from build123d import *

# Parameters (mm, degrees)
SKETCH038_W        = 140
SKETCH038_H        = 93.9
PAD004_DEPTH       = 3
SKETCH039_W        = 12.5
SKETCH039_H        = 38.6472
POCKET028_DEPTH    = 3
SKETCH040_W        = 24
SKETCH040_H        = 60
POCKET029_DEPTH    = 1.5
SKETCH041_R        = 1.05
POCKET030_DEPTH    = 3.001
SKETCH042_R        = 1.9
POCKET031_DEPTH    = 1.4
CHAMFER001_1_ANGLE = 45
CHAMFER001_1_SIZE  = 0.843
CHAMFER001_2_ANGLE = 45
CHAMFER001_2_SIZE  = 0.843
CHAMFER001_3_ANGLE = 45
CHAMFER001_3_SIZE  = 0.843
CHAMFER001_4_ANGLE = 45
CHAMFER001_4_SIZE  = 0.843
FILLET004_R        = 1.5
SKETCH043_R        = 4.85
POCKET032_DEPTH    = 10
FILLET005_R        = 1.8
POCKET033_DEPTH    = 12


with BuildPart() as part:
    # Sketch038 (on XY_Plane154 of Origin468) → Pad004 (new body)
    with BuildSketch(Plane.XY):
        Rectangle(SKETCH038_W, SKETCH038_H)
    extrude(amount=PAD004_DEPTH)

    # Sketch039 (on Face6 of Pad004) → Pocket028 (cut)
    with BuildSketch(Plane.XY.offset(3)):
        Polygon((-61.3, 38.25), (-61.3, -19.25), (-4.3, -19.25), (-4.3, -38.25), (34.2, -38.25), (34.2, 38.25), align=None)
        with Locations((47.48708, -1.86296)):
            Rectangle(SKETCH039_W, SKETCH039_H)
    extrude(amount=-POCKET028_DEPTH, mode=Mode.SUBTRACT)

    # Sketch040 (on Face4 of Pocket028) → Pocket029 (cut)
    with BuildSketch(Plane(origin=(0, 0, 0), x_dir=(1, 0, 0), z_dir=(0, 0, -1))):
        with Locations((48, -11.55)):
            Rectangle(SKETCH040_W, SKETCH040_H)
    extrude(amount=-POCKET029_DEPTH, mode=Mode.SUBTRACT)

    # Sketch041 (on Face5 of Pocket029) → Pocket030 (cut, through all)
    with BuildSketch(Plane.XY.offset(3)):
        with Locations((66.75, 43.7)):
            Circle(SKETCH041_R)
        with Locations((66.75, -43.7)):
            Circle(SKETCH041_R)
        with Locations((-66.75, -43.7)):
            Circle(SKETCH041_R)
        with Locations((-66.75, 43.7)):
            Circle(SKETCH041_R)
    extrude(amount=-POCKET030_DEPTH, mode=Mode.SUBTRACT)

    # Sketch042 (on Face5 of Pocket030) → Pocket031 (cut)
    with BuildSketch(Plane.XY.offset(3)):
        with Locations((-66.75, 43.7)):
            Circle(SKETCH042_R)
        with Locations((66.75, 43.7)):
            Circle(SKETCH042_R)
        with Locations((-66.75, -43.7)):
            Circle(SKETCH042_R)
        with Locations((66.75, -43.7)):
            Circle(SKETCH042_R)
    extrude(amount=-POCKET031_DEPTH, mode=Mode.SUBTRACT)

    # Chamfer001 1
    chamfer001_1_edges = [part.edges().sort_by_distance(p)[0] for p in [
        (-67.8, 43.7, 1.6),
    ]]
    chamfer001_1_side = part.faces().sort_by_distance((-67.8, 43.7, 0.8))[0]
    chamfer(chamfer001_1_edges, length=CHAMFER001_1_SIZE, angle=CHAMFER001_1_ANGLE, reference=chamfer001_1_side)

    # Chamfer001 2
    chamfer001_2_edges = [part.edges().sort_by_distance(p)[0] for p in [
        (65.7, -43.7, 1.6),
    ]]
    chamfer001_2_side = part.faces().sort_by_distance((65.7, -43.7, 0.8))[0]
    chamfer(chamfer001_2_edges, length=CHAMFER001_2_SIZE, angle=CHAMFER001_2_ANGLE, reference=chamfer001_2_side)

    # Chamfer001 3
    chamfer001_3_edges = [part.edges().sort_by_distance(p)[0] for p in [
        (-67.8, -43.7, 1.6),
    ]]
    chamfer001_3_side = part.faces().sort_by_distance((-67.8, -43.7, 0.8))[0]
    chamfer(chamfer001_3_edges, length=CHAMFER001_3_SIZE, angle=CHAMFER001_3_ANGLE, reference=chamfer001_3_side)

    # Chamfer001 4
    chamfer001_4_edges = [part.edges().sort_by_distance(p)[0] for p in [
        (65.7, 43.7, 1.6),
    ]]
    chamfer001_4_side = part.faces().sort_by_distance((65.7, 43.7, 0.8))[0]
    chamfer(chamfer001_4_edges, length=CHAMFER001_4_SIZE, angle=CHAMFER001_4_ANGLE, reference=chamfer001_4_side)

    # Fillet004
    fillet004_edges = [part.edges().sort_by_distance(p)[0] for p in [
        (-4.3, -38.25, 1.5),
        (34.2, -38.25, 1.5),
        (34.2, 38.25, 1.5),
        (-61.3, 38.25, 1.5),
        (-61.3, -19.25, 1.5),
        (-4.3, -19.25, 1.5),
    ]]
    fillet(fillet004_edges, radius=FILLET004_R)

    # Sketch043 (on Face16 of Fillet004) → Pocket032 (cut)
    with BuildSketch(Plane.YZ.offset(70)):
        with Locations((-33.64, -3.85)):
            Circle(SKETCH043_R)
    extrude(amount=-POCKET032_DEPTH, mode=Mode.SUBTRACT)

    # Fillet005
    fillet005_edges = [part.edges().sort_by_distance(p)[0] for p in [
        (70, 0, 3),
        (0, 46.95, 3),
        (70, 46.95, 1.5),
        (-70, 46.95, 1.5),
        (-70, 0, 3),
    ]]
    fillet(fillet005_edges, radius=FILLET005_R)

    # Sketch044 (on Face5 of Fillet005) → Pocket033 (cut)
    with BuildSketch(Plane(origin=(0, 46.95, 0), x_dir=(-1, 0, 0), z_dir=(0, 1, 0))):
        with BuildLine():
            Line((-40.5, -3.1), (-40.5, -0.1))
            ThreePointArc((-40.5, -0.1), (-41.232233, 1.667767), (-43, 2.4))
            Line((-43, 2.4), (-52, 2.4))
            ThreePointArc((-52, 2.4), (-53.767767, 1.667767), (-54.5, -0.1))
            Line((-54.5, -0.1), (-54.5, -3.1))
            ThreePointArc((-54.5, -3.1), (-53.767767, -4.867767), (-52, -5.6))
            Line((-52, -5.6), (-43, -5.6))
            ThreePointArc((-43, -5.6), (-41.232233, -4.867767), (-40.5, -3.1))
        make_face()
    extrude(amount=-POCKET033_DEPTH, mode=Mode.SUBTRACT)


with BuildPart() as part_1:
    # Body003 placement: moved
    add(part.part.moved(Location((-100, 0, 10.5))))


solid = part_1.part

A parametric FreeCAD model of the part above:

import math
import FreeCAD as App
import Part
import Sketcher

V = App.Vector


def edges_at(feature, points):
    """Names of the edges that pass closest to the given points."""
    edges = feature.Shape.Edges
    near = lambda p: min(range(len(edges)), key=lambda i: edges[i].distToShape(Part.Vertex(*p))[0])
    return sorted({f"Edge{near(p) + 1}" for p in points})


def add_polygon(sketch, points):
    """Adds a closed chain of lines whose ends are joined by coincident constraints."""
    first, n = sketch.GeometryCount, len(points)
    for a, b in zip(points, points[1:] + points[:1]):
        sketch.addGeometry(Part.LineSegment(App.Vector(*a, 0), App.Vector(*b, 0)), False)
    for i in range(n):
        sketch.addConstraint(Sketcher.Constraint("Coincident", first + i, 2, first + (i + 1) % n, 1))

doc = App.newDocument("Part")
body = doc.addObject("PartDesign::Body", "Body")

# Sketch on XY plane
sketch1 = body.newObject("Sketcher::SketchObject", "Sketch")
sketch1.AttachmentSupport = (doc.getObject("XY_Plane"), [""])
sketch1.MapMode = "FlatFace"
add_polygon(sketch1, [(-70, 46.95), (-70, -46.95), (70, -46.95), (70, 46.95)])  # lines 0-3
sketch1.addConstraint(Sketcher.Constraint("Vertical", 0))
sketch1.addConstraint(Sketcher.Constraint("Horizontal", 1))
sketch1.addConstraint(Sketcher.Constraint("Vertical", 2))
sketch1.addConstraint(Sketcher.Constraint("Horizontal", 3))
sketch1.addConstraint(Sketcher.Constraint("Symmetric", 0, 2, 2, 2, -1, 1))
sketch1.addConstraint(Sketcher.Constraint("DistanceX", 1, 1, 1, 2, 140.0))
sketch1.addConstraint(Sketcher.Constraint("DistanceY", 0, 2, 0, 1, 93.9))
pad1 = body.newObject("PartDesign::Pad", "Pad")
pad1.Profile = sketch1
pad1.Length = 3

# Sketch on XY plane
sketch2 = body.newObject("Sketcher::SketchObject", "Sketch001")
sketch2.AttachmentSupport = (doc.getObject("XY_Plane"), [""])
sketch2.MapMode = "FlatFace"
sketch2.AttachmentOffset = App.Placement(V(0, 0, 3), App.Rotation())
add_polygon(sketch2, [(-61.3, 38.25), (-61.3, -19.25), (-4.3, -19.25), (-4.3, -38.25), (34.2, -38.25), (34.2, 38.25)])  # lines 0-5
add_polygon(sketch2, [(41.23708, 17.46064), (41.23708, -21.18656), (53.73708, -21.18656), (53.73708, 17.46064)])  # lines 6-9
sketch2.addConstraint(Sketcher.Constraint("Vertical", 0))
sketch2.addConstraint(Sketcher.Constraint("Horizontal", 1))
sketch2.addConstraint(Sketcher.Constraint("Vertical", 2))
sketch2.addConstraint(Sketcher.Constraint("Horizontal", 3))
sketch2.addConstraint(Sketcher.Constraint("Vertical", 4))
sketch2.addConstraint(Sketcher.Constraint("Horizontal", 5))
sketch2.addConstraint(Sketcher.Constraint("Vertical", 6))
sketch2.addConstraint(Sketcher.Constraint("Horizontal", 7))
sketch2.addConstraint(Sketcher.Constraint("Vertical", 8))
sketch2.addConstraint(Sketcher.Constraint("Horizontal", 9))
sketch2.addConstraint(Sketcher.Constraint("DistanceX", 1, 1, 1, 2, 57.0))
sketch2.addConstraint(Sketcher.Constraint("DistanceY", 2, 2, 2, 1, 19.0))
sketch2.addConstraint(Sketcher.Constraint("DistanceX", 3, 1, 3, 2, 38.5))
sketch2.addConstraint(Sketcher.Constraint("DistanceX", 7, 1, 7, 2, 12.5))
sketch2.addConstraint(Sketcher.Constraint("DistanceY", 0, 2, 0, 1, 57.5))
sketch2.addConstraint(Sketcher.Constraint("DistanceX", 0, 2, -1, 1, 61.3))
sketch2.addConstraint(Sketcher.Constraint("DistanceY", 0, 2, -1, 1, 19.25))
sketch2.addConstraint(Sketcher.Constraint("DistanceY", 6, 2, 6, 1, 38.6472))
sketch2.addConstraint(Sketcher.Constraint("DistanceX", -1, 1, 6, 2, 41.23708))
sketch2.addConstraint(Sketcher.Constraint("DistanceY", 6, 2, -1, 1, 21.18656))
pocket1 = body.newObject("PartDesign::Pocket", "Pocket")
pocket1.Profile = sketch2
pocket1.Length = 3

# Sketch on XY plane
sketch3 = body.newObject("Sketcher::SketchObject", "Sketch002")
sketch3.AttachmentSupport = (doc.getObject("XY_Plane"), [""])
sketch3.MapMode = "FlatFace"
add_polygon(sketch3, [(36, -18.45), (36, 41.55), (60, 41.55), (60, -18.45)])  # lines 0-3
sketch3.addConstraint(Sketcher.Constraint("Vertical", 0))
sketch3.addConstraint(Sketcher.Constraint("Horizontal", 1))
sketch3.addConstraint(Sketcher.Constraint("Vertical", 2))
sketch3.addConstraint(Sketcher.Constraint("Horizontal", 3))
sketch3.addConstraint(Sketcher.Constraint("DistanceX", 1, 1, 1, 2, 24.0))
sketch3.addConstraint(Sketcher.Constraint("DistanceY", 0, 1, 0, 2, 60.0))
sketch3.addConstraint(Sketcher.Constraint("DistanceX", -1, 1, 0, 2, 36.0))
sketch3.addConstraint(Sketcher.Constraint("DistanceY", -1, 1, 0, 2, 41.55))
pocket2 = body.newObject("PartDesign::Pocket", "Pocket001")
pocket2.Profile = sketch3
pocket2.Length = 1.5
pocket2.Reversed = True

# Sketch on XY plane
sketch4 = body.newObject("Sketcher::SketchObject", "Sketch003")
sketch4.AttachmentSupport = (doc.getObject("XY_Plane"), [""])
sketch4.MapMode = "FlatFace"
sketch4.AttachmentOffset = App.Placement(V(0, 0, 3), App.Rotation())
sketch4.addGeometry(Part.Circle(V(66.75, 43.7, 0), V(0, 0, 1), 1.05), False)
sketch4.addGeometry(Part.Circle(V(66.75, -43.7, 0), V(0, 0, 1), 1.05), False)
sketch4.addGeometry(Part.Circle(V(-66.75, -43.7, 0), V(0, 0, 1), 1.05), False)
sketch4.addGeometry(Part.Circle(V(-66.75, 43.7, 0), V(0, 0, 1), 1.05), False)
sketch4.addConstraint(Sketcher.Constraint("Equal", 0, 1))
sketch4.addConstraint(Sketcher.Constraint("Equal", 1, 2))
sketch4.addConstraint(Sketcher.Constraint("Equal", 2, 3))
sketch4.addConstraint(Sketcher.Constraint("Symmetric", 0, 3, 2, 3, -1, 1))
sketch4.addConstraint(Sketcher.Constraint("Symmetric", 1, 3, 3, 3, -1, 1))
sketch4.addConstraint(Sketcher.Constraint("Symmetric", 1, 3, 2, 3, -2))
sketch4.addConstraint(Sketcher.Constraint("Diameter", 0, 2.1))
sketch4.addConstraint(Sketcher.Constraint("DistanceY", -1, 1, 0, 3, 43.7))
sketch4.addConstraint(Sketcher.Constraint("DistanceX", 2, 3, 1, 3, 133.5))
pocket3 = body.newObject("PartDesign::Pocket", "Pocket002")
pocket3.Profile = sketch4
pocket3.Type = "ThroughAll"

# Sketch on XY plane
sketch5 = body.newObject("Sketcher::SketchObject", "Sketch004")
sketch5.AttachmentSupport = (doc.getObject("XY_Plane"), [""])
sketch5.MapMode = "FlatFace"
sketch5.AttachmentOffset = App.Placement(V(0, 0, 3), App.Rotation())
sketch5.addGeometry(Part.Circle(V(-66.75, 43.7, 0), V(0, 0, 1), 1.9), False)
sketch5.addGeometry(Part.Circle(V(66.75, 43.7, 0), V(0, 0, 1), 1.9), False)
sketch5.addGeometry(Part.Circle(V(-66.75, -43.7, 0), V(0, 0, 1), 1.9), False)
sketch5.addGeometry(Part.Circle(V(66.75, -43.7, 0), V(0, 0, 1), 1.9), False)
sketch5.addConstraint(Sketcher.Constraint("Equal", 0, 1))
sketch5.addConstraint(Sketcher.Constraint("Equal", 1, 2))
sketch5.addConstraint(Sketcher.Constraint("Equal", 2, 3))
sketch5.addConstraint(Sketcher.Constraint("Symmetric", 1, 3, 2, 3, -1, 1))
sketch5.addConstraint(Sketcher.Constraint("Symmetric", 0, 3, 3, 3, -1, 1))
sketch5.addConstraint(Sketcher.Constraint("Symmetric", 0, 3, 1, 3, -2))
sketch5.addConstraint(Sketcher.Constraint("Diameter", 0, 3.8))
sketch5.addConstraint(Sketcher.Constraint("DistanceY", -1, 1, 0, 3, 43.7))
sketch5.addConstraint(Sketcher.Constraint("DistanceX", 0, 3, 1, 3, 133.5))
pocket4 = body.newObject("PartDesign::Pocket", "Pocket003")
pocket4.Profile = sketch5
pocket4.Length = 1.4
doc.recompute()

chamfer = body.newObject("PartDesign::Chamfer", "Chamfer")
chamfer.Base = (pocket4, edges_at(pocket4, [(-67.8, 43.7, 1.6)]))
chamfer.Size = 0.843
doc.recompute()

chamfer2 = body.newObject("PartDesign::Chamfer", "Chamfer001")
chamfer2.Base = (chamfer, edges_at(chamfer, [(65.7, -43.7, 1.6)]))
chamfer2.Size = 0.843
doc.recompute()

chamfer3 = body.newObject("PartDesign::Chamfer", "Chamfer002")
chamfer3.Base = (chamfer2, edges_at(chamfer2, [(-67.8, -43.7, 1.6)]))
chamfer3.Size = 0.843
doc.recompute()

chamfer4 = body.newObject("PartDesign::Chamfer", "Chamfer003")
chamfer4.Base = (chamfer3, edges_at(chamfer3, [(65.7, 43.7, 1.6)]))
chamfer4.Size = 0.843
doc.recompute()

fillet = body.newObject("PartDesign::Fillet", "Fillet")
fillet.Base = (chamfer4, edges_at(chamfer4, [
    (-4.3, -38.25, 1.5),
    (34.2, -38.25, 1.5),
    (34.2, 38.25, 1.5),
    (-61.3, 38.25, 1.5),
    (-61.3, -19.25, 1.5),
    (-4.3, -19.25, 1.5),
]))
fillet.Radius = 1.5

# Sketch on YZ plane
sketch6 = body.newObject("Sketcher::SketchObject", "Sketch005")
sketch6.AttachmentSupport = (doc.getObject("YZ_Plane"), [""])
sketch6.MapMode = "FlatFace"
sketch6.AttachmentOffset = App.Placement(V(0, 0, 70), App.Rotation())
sketch6.addGeometry(Part.Circle(V(-33.64, -3.85, 0), V(0, 0, 1), 4.85), False)
sketch6.addConstraint(Sketcher.Constraint("Diameter", 0, 9.7))
sketch6.addConstraint(Sketcher.Constraint("DistanceX", 0, 3, -1, 1, 33.64))
sketch6.addConstraint(Sketcher.Constraint("DistanceY", 0, 3, -1, 1, 3.85))
pocket5 = body.newObject("PartDesign::Pocket", "Pocket004")
pocket5.Profile = sketch6
pocket5.Length = 10
doc.recompute()

fillet2 = body.newObject("PartDesign::Fillet", "Fillet001")
fillet2.Base = (pocket5, edges_at(pocket5, [
    (70, 0, 3),
    (0, 46.95, 3),
    (70, 46.95, 1.5),
    (-70, 46.95, 1.5),
    (-70, 0, 3),
]))
fillet2.Radius = 1.8

# Sketch on XZ plane
sketch7 = body.newObject("Sketcher::SketchObject", "Sketch006")
sketch7.AttachmentSupport = (doc.getObject("XZ_Plane"), [""])
sketch7.MapMode = "FlatFace"
sketch7.AttachmentOffset = App.Placement(V(0, 0, -46.95), App.Rotation())
sketch7.addGeometry(Part.LineSegment(V(40.5, -3.1, 0), V(40.5, -0.1, 0)), False)
sketch7.addGeometry(Part.ArcOfCircle(Part.Circle(V(43, -0.1, 0), V(0, 0, 1), 2.5), math.radians(89.999996), math.radians(180.000004)), False)
sketch7.addGeometry(Part.LineSegment(V(43, 2.4, 0), V(52, 2.4, 0)), False)
sketch7.addGeometry(Part.ArcOfCircle(Part.Circle(V(52, -0.1, 0), V(0, 0, 1), 2.5), math.radians(-0.000004), math.radians(90.000004)), False)
sketch7.addGeometry(Part.LineSegment(V(54.5, -0.1, 0), V(54.5, -3.1, 0)), False)
sketch7.addGeometry(Part.ArcOfCircle(Part.Circle(V(52, -3.1, 0), V(0, 0, 1), 2.5), math.radians(-90.000004), math.radians(0.000004)), False)
sketch7.addGeometry(Part.LineSegment(V(52, -5.6, 0), V(43, -5.6, 0)), False)
sketch7.addGeometry(Part.ArcOfCircle(Part.Circle(V(43, -3.1, 0), V(0, 0, 1), 2.5), math.radians(179.999996), math.radians(270.000004)), False)
sketch7.addConstraint(Sketcher.Constraint("Tangent", 0, 2, 1, 2))
sketch7.addConstraint(Sketcher.Constraint("Tangent", 1, 1, 2, 1))
sketch7.addConstraint(Sketcher.Constraint("Tangent", 2, 2, 3, 2))
sketch7.addConstraint(Sketcher.Constraint("Tangent", 3, 1, 4, 1))
sketch7.addConstraint(Sketcher.Constraint("Tangent", 4, 2, 5, 2))
sketch7.addConstraint(Sketcher.Constraint("Tangent", 5, 1, 6, 1))
sketch7.addConstraint(Sketcher.Constraint("Tangent", 6, 2, 7, 2))
sketch7.addConstraint(Sketcher.Constraint("Tangent", 7, 1, 0, 1))
sketch7.addConstraint(Sketcher.Constraint("Vertical", 0))
sketch7.addConstraint(Sketcher.Constraint("Horizontal", 2))
sketch7.addConstraint(Sketcher.Constraint("Vertical", 4))
sketch7.addConstraint(Sketcher.Constraint("Horizontal", 6))
sketch7.addConstraint(Sketcher.Constraint("Equal", 1, 3))
sketch7.addConstraint(Sketcher.Constraint("Equal", 3, 5))
sketch7.addConstraint(Sketcher.Constraint("Equal", 5, 7))
sketch7.addConstraint(Sketcher.Constraint("Radius", 1, 2.5))
sketch7.addConstraint(Sketcher.Constraint("DistanceX", 2, 1, 2, 2, 9.0))
sketch7.addConstraint(Sketcher.Constraint("DistanceY", 0, 1, 0, 2, 3.0))
sketch7.addConstraint(Sketcher.Constraint("DistanceX", -1, 1, 1, 3, 43.0))
sketch7.addConstraint(Sketcher.Constraint("DistanceY", 1, 3, -1, 1, 0.1))
pocket6 = body.newObject("PartDesign::Pocket", "Pocket005")
pocket6.Profile = sketch7
pocket6.Length = 12
pocket6.Reversed = True
body2 = doc.addObject("PartDesign::Body", "Body001")
doc.recompute()

body.Placement = App.Placement(V(-100, 0, 10.5), App.Rotation(V(0, 0, 1), 0))
boolean = body2.newObject("PartDesign::Boolean", "Boolean")
boolean.Type = "Fuse"
boolean.addObjects([body])

doc.recompute()
